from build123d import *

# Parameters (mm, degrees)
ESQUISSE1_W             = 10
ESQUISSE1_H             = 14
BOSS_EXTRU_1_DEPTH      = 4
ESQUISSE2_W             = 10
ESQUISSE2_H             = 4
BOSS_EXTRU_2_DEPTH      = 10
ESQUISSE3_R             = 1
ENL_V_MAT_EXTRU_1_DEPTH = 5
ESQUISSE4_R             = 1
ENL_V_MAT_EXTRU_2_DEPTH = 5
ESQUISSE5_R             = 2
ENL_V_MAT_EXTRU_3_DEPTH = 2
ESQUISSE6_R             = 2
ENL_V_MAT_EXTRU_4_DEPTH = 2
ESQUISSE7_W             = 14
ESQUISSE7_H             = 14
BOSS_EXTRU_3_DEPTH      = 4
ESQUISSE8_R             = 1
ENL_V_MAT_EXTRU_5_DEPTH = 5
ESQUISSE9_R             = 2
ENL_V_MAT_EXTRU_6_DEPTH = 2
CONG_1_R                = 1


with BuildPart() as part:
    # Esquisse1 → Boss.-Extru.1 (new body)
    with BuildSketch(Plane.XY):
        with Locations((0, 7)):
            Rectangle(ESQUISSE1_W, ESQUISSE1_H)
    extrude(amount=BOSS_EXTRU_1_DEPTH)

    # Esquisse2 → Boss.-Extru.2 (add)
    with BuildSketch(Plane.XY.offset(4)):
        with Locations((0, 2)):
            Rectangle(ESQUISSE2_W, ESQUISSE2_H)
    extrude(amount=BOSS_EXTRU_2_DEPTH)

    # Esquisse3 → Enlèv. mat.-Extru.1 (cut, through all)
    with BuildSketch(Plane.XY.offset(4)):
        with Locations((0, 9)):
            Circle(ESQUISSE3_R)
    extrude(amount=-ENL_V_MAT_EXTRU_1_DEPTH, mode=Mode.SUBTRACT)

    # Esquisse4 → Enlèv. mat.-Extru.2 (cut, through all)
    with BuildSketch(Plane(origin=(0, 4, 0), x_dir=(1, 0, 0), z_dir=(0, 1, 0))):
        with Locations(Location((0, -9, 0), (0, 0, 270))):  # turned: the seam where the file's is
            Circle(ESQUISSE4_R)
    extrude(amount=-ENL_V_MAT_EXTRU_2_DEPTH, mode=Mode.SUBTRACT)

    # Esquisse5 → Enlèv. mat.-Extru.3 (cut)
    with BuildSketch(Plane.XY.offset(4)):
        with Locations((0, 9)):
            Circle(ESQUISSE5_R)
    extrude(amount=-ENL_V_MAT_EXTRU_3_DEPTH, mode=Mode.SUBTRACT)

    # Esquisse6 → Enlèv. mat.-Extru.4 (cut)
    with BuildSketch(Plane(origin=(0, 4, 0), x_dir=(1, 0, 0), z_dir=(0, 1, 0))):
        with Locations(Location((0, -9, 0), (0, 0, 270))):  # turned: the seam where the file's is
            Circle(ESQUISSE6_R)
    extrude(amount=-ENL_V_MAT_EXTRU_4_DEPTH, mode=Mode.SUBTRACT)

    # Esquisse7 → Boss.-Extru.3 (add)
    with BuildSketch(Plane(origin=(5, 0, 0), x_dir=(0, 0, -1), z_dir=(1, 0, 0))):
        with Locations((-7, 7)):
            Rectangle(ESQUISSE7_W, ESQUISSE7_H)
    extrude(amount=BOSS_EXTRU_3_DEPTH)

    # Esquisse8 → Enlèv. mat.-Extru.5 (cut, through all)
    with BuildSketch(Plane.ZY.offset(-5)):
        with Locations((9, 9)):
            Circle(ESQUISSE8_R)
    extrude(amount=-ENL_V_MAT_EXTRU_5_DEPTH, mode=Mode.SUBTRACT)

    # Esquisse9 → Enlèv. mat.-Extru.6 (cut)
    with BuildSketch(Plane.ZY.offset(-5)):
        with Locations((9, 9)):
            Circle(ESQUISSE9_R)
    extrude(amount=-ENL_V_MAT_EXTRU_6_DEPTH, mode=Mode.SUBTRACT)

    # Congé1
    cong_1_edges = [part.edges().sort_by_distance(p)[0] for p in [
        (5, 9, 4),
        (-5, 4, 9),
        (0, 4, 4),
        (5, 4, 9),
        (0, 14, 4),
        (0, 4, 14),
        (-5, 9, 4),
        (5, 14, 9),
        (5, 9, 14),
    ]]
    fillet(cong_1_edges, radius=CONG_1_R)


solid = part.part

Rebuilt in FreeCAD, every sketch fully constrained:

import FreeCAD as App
import Part
import Sketcher

V = App.Vector


def edges_at(feature, points):
    """Names of the edges that pass closest to the given points."""
    edges = feature.Shape.Edges
    near = lambda p: min(range(len(edges)), key=lambda i: edges[i].distToShape(Part.Vertex(*p))[0])
    return sorted({f"Edge{near(p) + 1}" for p in points})

doc = App.newDocument("Part")
body = doc.addObject("PartDesign::Body", "Body")

sketch1 = doc.addObject("Sketcher::SketchObject", "Sketch")
body.addObject(sketch1)
sketch1.AttachmentSupport = (doc.XY_Plane, [""])
sketch1.MapMode = "FlatFace"
sketch1.addGeometry([
    Part.LineSegment(V(-5, 14, 0), V(-5, 0, 0)),
    Part.LineSegment(V(-5, 0, 0), V(5, 0, 0)),
    Part.LineSegment(V(5, 0, 0), V(5, 14, 0)),
    Part.LineSegment(V(5, 14, 0), V(-5, 14, 0)),
], False)
sketch1.addConstraint([
    Sketcher.Constraint("Coincident", 0, 2, 1, 1),
    Sketcher.Constraint("Coincident", 1, 2, 2, 1),
    Sketcher.Constraint("Coincident", 2, 2, 3, 1),
    Sketcher.Constraint("Coincident", 3, 2, 0, 1),
    Sketcher.Constraint("Vertical", 0),
    Sketcher.Constraint("Horizontal", 1),
    Sketcher.Constraint("Vertical", 2),
    Sketcher.Constraint("Horizontal", 3),
    Sketcher.Constraint("Symmetric", 0, 2, 1, 2, -1, 1),
    Sketcher.Constraint("DistanceX", 1, 1, 1, 2, 10.0),
    Sketcher.Constraint("DistanceY", 0, 2, 0, 1, 14.0),
])
pad1 = doc.addObject("PartDesign::Pad", "Pad")
body.addObject(pad1)
pad1.Profile = sketch1
pad1.Length = 4

sketch2 = doc.addObject("Sketcher::SketchObject", "Sketch001")
body.addObject(sketch2)
sketch2.AttachmentSupport = (doc.XY_Plane, [""])
sketch2.MapMode = "FlatFace"
sketch2.AttachmentOffset = App.Placement(V(0, 0, 4), App.Rotation())
sketch2.addGeometry([
    Part.LineSegment(V(-5, 4, 0), V(-5, 0, 0)),
    Part.LineSegment(V(-5, 0, 0), V(5, 0, 0)),
    Part.LineSegment(V(5, 0, 0), V(5, 4, 0)),
    Part.LineSegment(V(5, 4, 0), V(-5, 4, 0)),
], False)
sketch2.addConstraint([
    Sketcher.Constraint("Coincident", 0, 2, 1, 1),
    Sketcher.Constraint("Coincident", 1, 2, 2, 1),
    Sketcher.Constraint("Coincident", 2, 2, 3, 1),
    Sketcher.Constraint("Coincident", 3, 2, 0, 1),
    Sketcher.Constraint("Vertical", 0),
    Sketcher.Constraint("Horizontal", 1),
    Sketcher.Constraint("Vertical", 2),
    Sketcher.Constraint("Horizontal", 3),
    Sketcher.Constraint("Symmetric", 0, 2, 1, 2, -1, 1),
    Sketcher.Constraint("DistanceX", 1, 1, 1, 2, 10.0),
    Sketcher.Constraint("DistanceY", 0, 2, 0, 1, 4.0),
])
pad2 = doc.addObject("PartDesign::Pad", "Pad001")
body.addObject(pad2)
pad2.Profile = sketch2
pad2.Length = 10

sketch3 = doc.addObject("Sketcher::SketchObject", "Sketch002")
body.addObject(sketch3)
sketch3.AttachmentSupport = (doc.XY_Plane, [""])
sketch3.MapMode = "FlatFace"
sketch3.AttachmentOffset = App.Placement(V(0, 0, 4), App.Rotation())
sketch3.addGeometry(Part.Circle(V(0, 9, 0), V(0, 0, 1), 1), False)
sketch3.addConstraint([
    Sketcher.Constraint("PointOnObject", 0, 3, -2),
    Sketcher.Constraint("Diameter", 0, 2.0),
    Sketcher.Constraint("DistanceY", -1, 1, 0, 3, 9.0),
])
pocket1 = doc.addObject("PartDesign::Pocket", "Pocket")
body.addObject(pocket1)
pocket1.Profile = sketch3
pocket1.Type = "ThroughAll"

sketch4 = doc.addObject("Sketcher::SketchObject", "Sketch003")
body.addObject(sketch4)
sketch4.AttachmentSupport = (doc.XZ_Plane, [""])
sketch4.MapMode = "FlatFace"
sketch4.AttachmentOffset = App.Placement(V(0, 0, -4), App.Rotation())
sketch4.addGeometry(Part.Circle(V(0, 9, 0), V(0, 0, 1), 1), False)
sketch4.addConstraint([
    Sketcher.Constraint("PointOnObject", 0, 3, -2),
    Sketcher.Constraint("Diameter", 0, 2.0),
    Sketcher.Constraint("DistanceY", -1, 1, 0, 3, 9.0),
])
pocket2 = doc.addObject("PartDesign::Pocket", "Pocket001")
body.addObject(pocket2)
pocket2.Profile = sketch4
pocket2.Type = "ThroughAll"
pocket2.Reversed = True

sketch5 = doc.addObject("Sketcher::SketchObject", "Sketch004")
body.addObject(sketch5)
sketch5.AttachmentSupport = (doc.XY_Plane, [""])
sketch5.MapMode = "FlatFace"
sketch5.AttachmentOffset = App.Placement(V(0, 0, 4), App.Rotation())
sketch5.addGeometry(Part.Circle(V(0, 9, 0), V(0, 0, 1), 2), False)
sketch5.addConstraint([
    Sketcher.Constraint("PointOnObject", 0, 3, -2),
    Sketcher.Constraint("Diameter", 0, 4.0),
    Sketcher.Constraint("DistanceY", -1, 1, 0, 3, 9.0),
])
pocket3 = doc.addObject("PartDesign::Pocket", "Pocket002")
body.addObject(pocket3)
pocket3.Profile = sketch5
pocket3.Length = 2

sketch6 = doc.addObject("Sketcher::SketchObject", "Sketch005")
body.addObject(sketch6)
sketch6.AttachmentSupport = (doc.XZ_Plane, [""])
sketch6.MapMode = "FlatFace"
sketch6.AttachmentOffset = App.Placement(V(0, 0, -4), App.Rotation())
sketch6.addGeometry(Part.Circle(V(0, 9, 0), V(0, 0, 1), 2), False)
sketch6.addConstraint([
    Sketcher.Constraint("PointOnObject", 0, 3, -2),
    Sketcher.Constraint("Diameter", 0, 4.0),
    Sketcher.Constraint("DistanceY", -1, 1, 0, 3, 9.0),
])
pocket4 = doc.addObject("PartDesign::Pocket", "Pocket003")
body.addObject(pocket4)
pocket4.Profile = sketch6
pocket4.Length = 2
pocket4.Reversed = True

sketch7 = doc.addObject("Sketcher::SketchObject", "Sketch006")
body.addObject(sketch7)
sketch7.AttachmentSupport = (doc.YZ_Plane, [""])
sketch7.MapMode = "FlatFace"
sketch7.AttachmentOffset = App.Placement(V(0, 0, 5), App.Rotation())
sketch7.addGeometry([
    Part.LineSegment(V(14, 14, 0), V(0, 14, 0)),
    Part.LineSegment(V(0, 14, 0), V(0, 0, 0)),
    Part.LineSegment(V(0, 0, 0), V(14, 0, 0)),
    Part.LineSegment(V(14, 0, 0), V(14, 14, 0)),
], False)
sketch7.addConstraint([
    Sketcher.Constraint("Coincident", 0, 2, 1, 1),
    Sketcher.Constraint("Coincident", 1, 2, 2, 1),
    Sketcher.Constraint("Coincident", 2, 2, 3, 1),
    Sketcher.Constraint("Coincident", 3, 2, 0, 1),
    Sketcher.Constraint("Horizontal", 0),
    Sketcher.Constraint("Vertical", 1),
    Sketcher.Constraint("Horizontal", 2),
    Sketcher.Constraint("Vertical", 3),
    Sketcher.Constraint("Coincident", 1, 2, -1, 1),
    Sketcher.Constraint("Equal", 2, 1),
    Sketcher.Constraint("DistanceX", 0, 2, 0, 1, 14.0),
])
pad3 = doc.addObject("PartDesign::Pad", "Pad002")
body.addObject(pad3)
pad3.Profile = sketch7
pad3.Length = 4

sketch8 = doc.addObject("Sketcher::SketchObject", "Sketch007")
body.addObject(sketch8)
sketch8.AttachmentSupport = (doc.YZ_Plane, [""])
sketch8.MapMode = "FlatFace"
sketch8.AttachmentOffset = App.Placement(V(0, 0, 5), App.Rotation())
sketch8.addGeometry(Part.Circle(V(9, 9, 0), V(0, 0, 1), 1), False)
sketch8.addConstraint([
    Sketcher.Constraint("Diameter", 0, 2.0),
    Sketcher.Constraint("DistanceX", -1, 1, 0, 3, 9.0),
    Sketcher.Constraint("DistanceY", -1, 1, 0, 3, 9.0),
])
pocket5 = doc.addObject("PartDesign::Pocket", "Pocket004")
body.addObject(pocket5)
pocket5.Profile = sketch8
pocket5.Type = "ThroughAll"
pocket5.Reversed = True

sketch9 = doc.addObject("Sketcher::SketchObject", "Sketch008")
body.addObject(sketch9)
sketch9.AttachmentSupport = (doc.YZ_Plane, [""])
sketch9.MapMode = "FlatFace"
sketch9.AttachmentOffset = App.Placement(V(0, 0, 5), App.Rotation())
sketch9.addGeometry(Part.Circle(V(9, 9, 0), V(0, 0, 1), 2), False)
sketch9.addConstraint([
    Sketcher.Constraint("Diameter", 0, 4.0),
    Sketcher.Constraint("DistanceX", -1, 1, 0, 3, 9.0),
    Sketcher.Constraint("DistanceY", -1, 1, 0, 3, 9.0),
])
pocket6 = doc.addObject("PartDesign::Pocket", "Pocket005")
body.addObject(pocket6)
pocket6.Profile = sketch9
pocket6.Length = 2
pocket6.Reversed = True
doc.recompute()

fillet = doc.addObject("PartDesign::Fillet", "Fillet")
body.addObject(fillet)
fillet.Base = (pocket6, edges_at(pocket6, [
    (5, 9, 4),
    (-5, 4, 9),
    (0, 4, 4),
    (5, 4, 9),
    (0, 14, 4),
    (0, 4, 14),
    (-5, 9, 4),
    (5, 14, 9),
    (5, 9, 14),
]))
fillet.Radius = 1

doc.recompute()
